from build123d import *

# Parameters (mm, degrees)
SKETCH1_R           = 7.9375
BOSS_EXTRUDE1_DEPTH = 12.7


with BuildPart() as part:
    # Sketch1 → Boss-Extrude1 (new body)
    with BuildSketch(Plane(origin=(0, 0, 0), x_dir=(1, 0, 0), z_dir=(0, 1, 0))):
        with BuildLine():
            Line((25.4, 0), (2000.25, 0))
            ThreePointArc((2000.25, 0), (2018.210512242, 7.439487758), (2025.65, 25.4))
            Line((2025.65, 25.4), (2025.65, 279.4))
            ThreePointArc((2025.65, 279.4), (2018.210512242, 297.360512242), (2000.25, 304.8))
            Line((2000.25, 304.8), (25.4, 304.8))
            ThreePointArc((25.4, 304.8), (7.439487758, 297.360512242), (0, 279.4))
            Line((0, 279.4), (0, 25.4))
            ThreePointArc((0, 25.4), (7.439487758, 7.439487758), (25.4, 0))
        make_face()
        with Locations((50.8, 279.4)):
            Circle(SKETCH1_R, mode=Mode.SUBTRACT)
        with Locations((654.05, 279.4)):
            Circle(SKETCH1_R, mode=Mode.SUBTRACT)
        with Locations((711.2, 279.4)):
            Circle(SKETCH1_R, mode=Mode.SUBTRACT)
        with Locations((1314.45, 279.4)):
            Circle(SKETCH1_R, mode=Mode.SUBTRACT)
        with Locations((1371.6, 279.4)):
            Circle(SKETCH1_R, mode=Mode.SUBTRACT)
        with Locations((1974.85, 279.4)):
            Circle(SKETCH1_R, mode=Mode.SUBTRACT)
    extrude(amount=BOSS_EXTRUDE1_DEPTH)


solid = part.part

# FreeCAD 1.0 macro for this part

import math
import FreeCAD as App
import Part
import Sketcher

V = App.Vector
Q = App.Units.Quantity

doc = App.newDocument("Part")
body = doc.addObject("PartDesign::Body", "Body")

sketch1 = body.newObject("Sketcher::SketchObject", "Sketch")
sketch1.AttachmentSupport = (doc.getObject("XZ_Plane"), [""])
sketch1.MapMode = "FlatFace"
sketch1.addGeometry([
    Part.LineSegment(V(25, 0, 0), V(2000, 0, 0)),
    Part.ArcOfCircle(Part.Circle(V(2000, -25, 0), V(0, 0, 1), 25), math.radians(0), math.radians(90)),
    Part.LineSegment(V(2026, -25, 0), V(2026, -279, 0)),
    Part.ArcOfCircle(Part.Circle(V(2000, -279, 0), V(0, 0, 1), 25), math.radians(-90), math.radians(0)),
    Part.LineSegment(V(2000, -305, 0), V(25, -305, 0)),
    Part.ArcOfCircle(Part.Circle(V(25, -279, 0), V(0, 0, 1), 25), math.radians(180), math.radians(270)),
    Part.LineSegment(V(0, -279, 0), V(0, -25, 0)),
    Part.ArcOfCircle(Part.Circle(V(25, -25, 0), V(0, 0, 1), 25), math.radians(90), math.radians(180)),
    Part.Circle(V(51, -279, 0), V(0, 0, 1), 8),
    Part.Circle(V(654, -279, 0), V(0, 0, 1), 8),
    Part.Circle(V(711, -279, 0), V(0, 0, 1), 8),
    Part.Circle(V(1314, -279, 0), V(0, 0, 1), 8),
    Part.Circle(V(1372, -279, 0), V(0, 0, 1), 8),
    Part.Circle(V(1975, -279, 0), V(0, 0, 1), 8),
], False)
sketch1.addConstraint([
    Sketcher.Constraint("Tangent", 0, 2, 1, 2),
    Sketcher.Constraint("Tangent", 1, 1, 2, 1),
    Sketcher.Constraint("Tangent", 2, 2, 3, 2),
    Sketcher.Constraint("Tangent", 3, 1, 4, 1),
    Sketcher.Constraint("Tangent", 4, 2, 5, 2),
    Sketcher.Constraint("Tangent", 5, 1, 6, 1),
    Sketcher.Constraint("Tangent", 6, 2, 7, 2),
    Sketcher.Constraint("Tangent", 7, 1, 0, 1),
    Sketcher.Constraint("Horizontal", 0),
    Sketcher.Constraint("Vertical", 2),
    Sketcher.Constraint("Horizontal", 4),
    Sketcher.Constraint("Vertical", 6),
    Sketcher.Constraint("Equal", 1, 3),
    Sketcher.Constraint("Equal", 3, 5),
    Sketcher.Constraint("Equal", 5, 7),
    Sketcher.Constraint("Equal", 8, 9),
    Sketcher.Constraint("Equal", 9, 10),
    Sketcher.Constraint("Equal", 10, 11),
    Sketcher.Constraint("Equal", 11, 12),
    Sketcher.Constraint("Equal", 12, 13),
    Sketcher.Constraint("PointOnObject", 0, 2, -1),
    Sketcher.Constraint("PointOnObject", 5, 1, -2),
    Sketcher.Constraint("Horizontal", 5, 3, 8, 3),
    Sketcher.Constraint("Horizontal", 8, 3, 9, 3),
    Sketcher.Constraint("Horizontal", 9, 3, 10, 3),
    Sketcher.Constraint("Horizontal", 10, 3, 11, 3),
    Sketcher.Constraint("Horizontal", 11, 3, 12, 3),
    Sketcher.Constraint("Horizontal", 12, 3, 13, 3),
    Sketcher.Constraint("Radius", 1, Q("1 in")),
    Sketcher.Constraint("DistanceY", 2, 2, 2, 1, Q("10 in")),
    Sketcher.Constraint("Diameter", 8, Q("0.625 in")),
    Sketcher.Constraint("DistanceX", -1, 1, 8, 3, Q("2 in")),
    Sketcher.Constraint("DistanceX", -1, 1, 10, 3, Q("28 in")),
    Sketcher.Constraint("DistanceX", -1, 1, 12, 3, Q("54 in")),
    Sketcher.Constraint("DistanceX", 9, 3, 3, 3, Q("53 in")),
    Sketcher.Constraint("DistanceX", 9, 3, 11, 3, Q("26 in")),
    Sketcher.Constraint("DistanceX", 13, 3, 3, 3, Q("1 in")),
    Sketcher.Constraint("DistanceX", 0, 1, 0, 2, Q("77.75 in")),
])
pad1 = body.newObject("PartDesign::Pad", "Pad")
pad1.Profile = sketch1
pad1.Length = Q("0.5 in")
pad1.Reversed = True

doc.recompute()
